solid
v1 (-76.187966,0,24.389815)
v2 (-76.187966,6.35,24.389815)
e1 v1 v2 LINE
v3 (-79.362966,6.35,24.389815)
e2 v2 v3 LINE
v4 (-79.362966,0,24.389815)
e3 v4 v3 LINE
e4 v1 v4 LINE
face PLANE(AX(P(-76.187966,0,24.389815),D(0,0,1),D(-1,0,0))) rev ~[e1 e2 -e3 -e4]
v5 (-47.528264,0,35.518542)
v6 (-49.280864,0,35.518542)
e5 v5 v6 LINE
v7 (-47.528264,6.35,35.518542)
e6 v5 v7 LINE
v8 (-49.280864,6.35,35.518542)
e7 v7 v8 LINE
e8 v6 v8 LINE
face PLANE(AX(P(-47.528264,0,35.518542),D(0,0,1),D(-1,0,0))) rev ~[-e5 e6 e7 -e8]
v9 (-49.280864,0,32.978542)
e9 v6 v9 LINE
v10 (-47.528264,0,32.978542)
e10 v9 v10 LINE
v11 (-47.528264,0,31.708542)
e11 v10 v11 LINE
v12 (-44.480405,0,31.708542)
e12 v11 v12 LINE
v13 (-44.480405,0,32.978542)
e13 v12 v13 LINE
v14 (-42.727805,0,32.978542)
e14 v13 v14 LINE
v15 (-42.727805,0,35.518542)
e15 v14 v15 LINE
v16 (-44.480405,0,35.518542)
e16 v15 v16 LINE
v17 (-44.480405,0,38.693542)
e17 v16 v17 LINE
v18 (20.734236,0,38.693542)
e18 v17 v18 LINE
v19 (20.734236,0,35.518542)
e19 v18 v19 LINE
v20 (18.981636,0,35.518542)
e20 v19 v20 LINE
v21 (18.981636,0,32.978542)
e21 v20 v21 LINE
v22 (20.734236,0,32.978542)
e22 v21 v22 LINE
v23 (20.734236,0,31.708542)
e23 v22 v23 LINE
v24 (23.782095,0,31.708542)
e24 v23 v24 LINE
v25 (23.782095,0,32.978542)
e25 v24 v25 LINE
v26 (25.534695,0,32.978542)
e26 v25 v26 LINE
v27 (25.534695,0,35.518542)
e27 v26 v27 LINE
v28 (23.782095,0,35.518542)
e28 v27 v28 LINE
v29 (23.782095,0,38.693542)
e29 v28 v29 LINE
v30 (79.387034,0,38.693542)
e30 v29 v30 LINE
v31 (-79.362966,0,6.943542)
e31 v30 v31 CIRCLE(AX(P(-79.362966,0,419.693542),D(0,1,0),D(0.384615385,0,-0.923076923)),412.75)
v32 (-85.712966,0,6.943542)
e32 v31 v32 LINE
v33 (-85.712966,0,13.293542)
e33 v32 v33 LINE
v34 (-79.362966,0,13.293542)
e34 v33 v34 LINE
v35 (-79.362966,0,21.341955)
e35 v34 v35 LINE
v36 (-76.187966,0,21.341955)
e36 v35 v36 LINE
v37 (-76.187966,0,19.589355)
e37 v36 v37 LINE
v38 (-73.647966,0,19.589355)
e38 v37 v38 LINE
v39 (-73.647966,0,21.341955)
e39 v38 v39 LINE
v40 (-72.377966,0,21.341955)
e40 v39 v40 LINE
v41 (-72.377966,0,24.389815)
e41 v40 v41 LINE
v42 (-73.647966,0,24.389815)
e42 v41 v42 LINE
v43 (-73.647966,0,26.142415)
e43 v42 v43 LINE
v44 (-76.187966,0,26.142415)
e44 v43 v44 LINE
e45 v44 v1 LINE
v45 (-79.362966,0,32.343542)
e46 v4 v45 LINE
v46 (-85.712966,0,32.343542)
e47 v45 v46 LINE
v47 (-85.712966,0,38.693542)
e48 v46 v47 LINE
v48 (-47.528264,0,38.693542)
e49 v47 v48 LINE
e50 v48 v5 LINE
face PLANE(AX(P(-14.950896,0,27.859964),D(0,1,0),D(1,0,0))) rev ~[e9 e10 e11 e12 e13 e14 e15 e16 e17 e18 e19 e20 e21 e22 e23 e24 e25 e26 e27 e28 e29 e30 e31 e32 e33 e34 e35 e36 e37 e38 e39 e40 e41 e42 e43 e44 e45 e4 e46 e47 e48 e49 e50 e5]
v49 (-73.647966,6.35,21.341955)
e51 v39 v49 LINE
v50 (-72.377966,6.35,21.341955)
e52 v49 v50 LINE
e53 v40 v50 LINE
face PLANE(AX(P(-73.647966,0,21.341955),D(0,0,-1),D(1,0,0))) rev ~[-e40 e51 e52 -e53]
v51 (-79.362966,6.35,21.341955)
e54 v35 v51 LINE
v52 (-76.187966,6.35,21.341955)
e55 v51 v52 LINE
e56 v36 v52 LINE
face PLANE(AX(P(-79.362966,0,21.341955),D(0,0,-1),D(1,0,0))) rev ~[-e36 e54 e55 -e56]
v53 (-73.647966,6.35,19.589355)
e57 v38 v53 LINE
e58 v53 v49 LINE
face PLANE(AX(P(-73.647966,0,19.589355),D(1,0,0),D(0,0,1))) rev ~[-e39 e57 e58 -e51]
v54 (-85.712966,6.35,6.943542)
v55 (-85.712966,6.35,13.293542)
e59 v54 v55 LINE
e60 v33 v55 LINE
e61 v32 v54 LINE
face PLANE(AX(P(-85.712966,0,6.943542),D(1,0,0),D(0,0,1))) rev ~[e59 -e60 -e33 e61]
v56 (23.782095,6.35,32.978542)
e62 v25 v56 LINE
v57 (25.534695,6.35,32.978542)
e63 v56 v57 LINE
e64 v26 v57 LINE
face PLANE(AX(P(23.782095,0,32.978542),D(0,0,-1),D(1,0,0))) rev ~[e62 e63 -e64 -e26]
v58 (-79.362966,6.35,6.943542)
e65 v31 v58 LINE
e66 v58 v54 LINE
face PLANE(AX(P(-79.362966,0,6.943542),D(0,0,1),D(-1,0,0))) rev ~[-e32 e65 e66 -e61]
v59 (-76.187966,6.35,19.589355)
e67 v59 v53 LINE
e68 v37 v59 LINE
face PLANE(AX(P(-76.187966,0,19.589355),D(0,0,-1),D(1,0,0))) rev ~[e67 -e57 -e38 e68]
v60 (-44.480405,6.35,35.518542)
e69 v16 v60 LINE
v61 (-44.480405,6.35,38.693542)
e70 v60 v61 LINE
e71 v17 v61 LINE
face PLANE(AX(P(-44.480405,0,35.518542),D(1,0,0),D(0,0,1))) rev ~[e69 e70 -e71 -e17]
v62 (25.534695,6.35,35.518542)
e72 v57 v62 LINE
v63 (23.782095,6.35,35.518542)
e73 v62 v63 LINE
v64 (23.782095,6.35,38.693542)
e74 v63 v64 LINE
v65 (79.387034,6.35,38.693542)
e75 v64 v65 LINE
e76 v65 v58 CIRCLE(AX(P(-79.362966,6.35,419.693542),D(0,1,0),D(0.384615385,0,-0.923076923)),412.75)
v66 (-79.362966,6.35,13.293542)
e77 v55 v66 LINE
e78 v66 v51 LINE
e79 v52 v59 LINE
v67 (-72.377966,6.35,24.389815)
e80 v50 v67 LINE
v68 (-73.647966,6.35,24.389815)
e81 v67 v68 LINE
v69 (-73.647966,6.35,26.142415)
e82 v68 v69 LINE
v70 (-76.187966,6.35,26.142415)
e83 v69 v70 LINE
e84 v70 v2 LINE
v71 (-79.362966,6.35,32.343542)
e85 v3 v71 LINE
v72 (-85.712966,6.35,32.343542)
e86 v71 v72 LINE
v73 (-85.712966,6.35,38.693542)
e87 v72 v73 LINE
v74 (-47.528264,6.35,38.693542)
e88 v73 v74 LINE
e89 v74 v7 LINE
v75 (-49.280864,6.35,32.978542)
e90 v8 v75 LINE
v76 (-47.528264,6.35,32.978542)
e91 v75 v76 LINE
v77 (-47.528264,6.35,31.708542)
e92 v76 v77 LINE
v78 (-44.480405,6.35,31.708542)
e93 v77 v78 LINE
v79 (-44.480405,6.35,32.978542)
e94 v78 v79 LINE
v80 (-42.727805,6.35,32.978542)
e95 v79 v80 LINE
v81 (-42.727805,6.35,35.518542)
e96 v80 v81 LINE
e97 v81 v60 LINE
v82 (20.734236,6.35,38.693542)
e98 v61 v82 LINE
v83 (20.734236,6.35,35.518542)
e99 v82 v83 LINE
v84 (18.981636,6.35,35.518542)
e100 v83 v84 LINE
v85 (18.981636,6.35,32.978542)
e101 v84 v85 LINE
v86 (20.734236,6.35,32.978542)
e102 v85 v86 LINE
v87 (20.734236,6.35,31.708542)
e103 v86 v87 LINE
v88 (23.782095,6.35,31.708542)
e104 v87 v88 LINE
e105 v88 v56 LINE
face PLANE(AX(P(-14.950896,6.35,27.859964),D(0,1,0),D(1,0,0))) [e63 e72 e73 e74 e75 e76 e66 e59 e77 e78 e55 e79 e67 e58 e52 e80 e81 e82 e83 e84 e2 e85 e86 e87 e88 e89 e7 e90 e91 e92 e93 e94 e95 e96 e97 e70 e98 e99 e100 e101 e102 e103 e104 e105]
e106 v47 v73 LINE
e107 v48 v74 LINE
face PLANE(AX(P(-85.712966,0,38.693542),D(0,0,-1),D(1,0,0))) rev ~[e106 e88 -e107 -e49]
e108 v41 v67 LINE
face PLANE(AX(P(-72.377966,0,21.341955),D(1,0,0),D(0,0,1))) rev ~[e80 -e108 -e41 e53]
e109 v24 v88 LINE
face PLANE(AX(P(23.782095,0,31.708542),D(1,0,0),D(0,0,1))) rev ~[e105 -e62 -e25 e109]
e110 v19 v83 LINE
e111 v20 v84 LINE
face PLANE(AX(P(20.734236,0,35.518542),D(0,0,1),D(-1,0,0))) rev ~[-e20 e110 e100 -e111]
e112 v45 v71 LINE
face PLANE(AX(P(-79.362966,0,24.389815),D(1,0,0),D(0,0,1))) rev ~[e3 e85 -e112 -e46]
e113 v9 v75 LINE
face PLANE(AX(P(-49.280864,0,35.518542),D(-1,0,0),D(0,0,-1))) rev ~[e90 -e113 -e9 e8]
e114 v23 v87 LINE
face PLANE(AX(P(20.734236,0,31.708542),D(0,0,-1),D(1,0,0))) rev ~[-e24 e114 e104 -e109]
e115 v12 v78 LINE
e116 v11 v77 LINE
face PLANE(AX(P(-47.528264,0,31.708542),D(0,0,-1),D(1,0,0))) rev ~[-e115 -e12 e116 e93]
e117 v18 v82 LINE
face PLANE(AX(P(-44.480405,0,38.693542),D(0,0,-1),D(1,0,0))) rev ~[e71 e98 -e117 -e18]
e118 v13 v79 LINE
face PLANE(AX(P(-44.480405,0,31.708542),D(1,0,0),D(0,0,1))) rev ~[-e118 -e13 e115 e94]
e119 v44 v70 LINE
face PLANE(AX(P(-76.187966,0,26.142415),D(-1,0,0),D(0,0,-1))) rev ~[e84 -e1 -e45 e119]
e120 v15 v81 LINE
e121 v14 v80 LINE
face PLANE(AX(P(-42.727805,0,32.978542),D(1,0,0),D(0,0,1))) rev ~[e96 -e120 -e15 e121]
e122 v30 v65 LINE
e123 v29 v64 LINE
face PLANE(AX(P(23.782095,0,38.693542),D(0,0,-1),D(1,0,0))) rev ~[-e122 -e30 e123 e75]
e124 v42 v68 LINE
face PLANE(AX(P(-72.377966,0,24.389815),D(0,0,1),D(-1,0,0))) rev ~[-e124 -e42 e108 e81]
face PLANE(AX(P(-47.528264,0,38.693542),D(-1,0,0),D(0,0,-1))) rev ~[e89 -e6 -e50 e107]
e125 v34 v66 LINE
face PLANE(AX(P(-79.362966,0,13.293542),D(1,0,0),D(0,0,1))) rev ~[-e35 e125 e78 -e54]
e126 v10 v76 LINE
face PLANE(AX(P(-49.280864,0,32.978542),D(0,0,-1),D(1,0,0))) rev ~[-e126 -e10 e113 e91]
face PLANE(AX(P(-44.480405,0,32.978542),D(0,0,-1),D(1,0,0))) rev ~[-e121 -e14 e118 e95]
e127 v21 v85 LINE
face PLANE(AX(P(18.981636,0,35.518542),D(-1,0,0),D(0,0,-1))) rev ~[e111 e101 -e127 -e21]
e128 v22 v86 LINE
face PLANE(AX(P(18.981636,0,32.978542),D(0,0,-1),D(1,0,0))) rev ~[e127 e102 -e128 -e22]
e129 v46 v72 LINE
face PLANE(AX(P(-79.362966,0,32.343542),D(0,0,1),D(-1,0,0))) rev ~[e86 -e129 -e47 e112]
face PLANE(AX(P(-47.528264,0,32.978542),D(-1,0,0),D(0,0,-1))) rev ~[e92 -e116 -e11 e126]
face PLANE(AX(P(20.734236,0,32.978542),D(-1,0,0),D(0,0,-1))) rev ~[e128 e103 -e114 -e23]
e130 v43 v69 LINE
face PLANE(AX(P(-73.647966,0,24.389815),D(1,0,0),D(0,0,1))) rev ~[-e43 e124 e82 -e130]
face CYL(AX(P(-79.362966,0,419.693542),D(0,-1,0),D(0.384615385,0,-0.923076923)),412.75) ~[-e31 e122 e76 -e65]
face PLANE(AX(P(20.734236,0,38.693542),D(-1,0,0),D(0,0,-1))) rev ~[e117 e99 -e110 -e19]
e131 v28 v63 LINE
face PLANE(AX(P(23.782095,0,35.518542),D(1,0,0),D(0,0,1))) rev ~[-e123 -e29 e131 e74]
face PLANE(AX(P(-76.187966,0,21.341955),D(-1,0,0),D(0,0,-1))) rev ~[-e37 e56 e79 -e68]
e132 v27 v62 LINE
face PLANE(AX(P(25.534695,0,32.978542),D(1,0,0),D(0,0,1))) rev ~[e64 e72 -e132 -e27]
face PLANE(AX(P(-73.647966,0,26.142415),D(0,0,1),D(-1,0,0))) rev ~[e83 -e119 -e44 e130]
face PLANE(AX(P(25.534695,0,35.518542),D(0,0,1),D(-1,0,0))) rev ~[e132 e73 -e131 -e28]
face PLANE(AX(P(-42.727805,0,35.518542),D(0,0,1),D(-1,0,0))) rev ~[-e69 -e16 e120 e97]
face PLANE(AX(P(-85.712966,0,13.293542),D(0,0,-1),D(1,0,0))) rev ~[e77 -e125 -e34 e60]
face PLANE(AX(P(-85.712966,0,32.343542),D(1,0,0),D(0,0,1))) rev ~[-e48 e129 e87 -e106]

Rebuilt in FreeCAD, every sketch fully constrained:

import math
import FreeCAD as App
import Part
import Sketcher
from FreeCAD import Vector
Q = App.Units.Quantity

doc = App.newDocument("Part")
body = doc.addObject("PartDesign::Body", "Body")

sketch1 = doc.addObject("Sketcher::SketchObject", "Sketch")
body.addObject(sketch1)
sketch1.AttachmentSupport = (doc.XZ_Plane, [""])
sketch1.MapMode = "FlatFace"
sketch1.addGeometry([
    Part.LineSegment(Vector(-79.362966, 13.293542, 0), Vector(-79.362966, 21.341955, 0)),
    Part.LineSegment(Vector(-79.362966, 21.341955, 0), Vector(-76.187966, 21.341955, 0)),
    Part.LineSegment(Vector(-76.187966, 21.341955, 0), Vector(-76.187966, 19.589355, 0)),
    Part.LineSegment(Vector(-76.187966, 19.589355, 0), Vector(-73.647966, 19.589355, 0)),
    Part.LineSegment(Vector(-73.647966, 19.589355, 0), Vector(-73.647966, 21.341955, 0)),
    Part.LineSegment(Vector(-73.647966, 21.341955, 0), Vector(-72.377966, 21.341955, 0)),
    Part.LineSegment(Vector(-72.377966, 21.341955, 0), Vector(-72.377966, 24.389815, 0)),
    Part.LineSegment(Vector(-72.377966, 24.389815, 0), Vector(-73.647966, 24.389815, 0)),
    Part.LineSegment(Vector(-73.647966, 24.389815, 0), Vector(-73.647966, 26.142415, 0)),
    Part.LineSegment(Vector(-73.647966, 26.142415, 0), Vector(-76.187966, 26.142415, 0)),
    Part.LineSegment(Vector(-76.187966, 26.142415, 0), Vector(-76.187966, 24.389815, 0)),
    Part.LineSegment(Vector(-76.187966, 24.389815, 0), Vector(-79.362966, 24.389815, 0)),
    Part.LineSegment(Vector(-79.362966, 24.389815, 0), Vector(-79.362966, 32.343542, 0)),
    Part.LineSegment(Vector(-79.362966, 32.343542, 0), Vector(-85.712966, 32.343542, 0)),
    Part.LineSegment(Vector(-85.712966, 32.343542, 0), Vector(-85.712966, 38.693542, 0)),
    Part.LineSegment(Vector(-85.712966, 38.693542, 0), Vector(-47.528264, 38.693542, 0)),
    Part.LineSegment(Vector(-47.528264, 38.693542, 0), Vector(-47.528264, 35.518542, 0)),
    Part.LineSegment(Vector(-47.528264, 35.518542, 0), Vector(-49.280864, 35.518542, 0)),
    Part.LineSegment(Vector(-49.280864, 35.518542, 0), Vector(-49.280864, 32.978542, 0)),
    Part.LineSegment(Vector(-49.280864, 32.978542, 0), Vector(-47.528264, 32.978542, 0)),
    Part.LineSegment(Vector(-47.528264, 32.978542, 0), Vector(-47.528264, 31.708542, 0)),
    Part.LineSegment(Vector(-47.528264, 31.708542, 0), Vector(-44.480405, 31.708542, 0)),
    Part.LineSegment(Vector(-44.480405, 31.708542, 0), Vector(-44.480405, 32.978542, 0)),
    Part.LineSegment(Vector(-44.480405, 32.978542, 0), Vector(-42.727805, 32.978542, 0)),
    Part.LineSegment(Vector(-42.727805, 32.978542, 0), Vector(-42.727805, 35.518542, 0)),
    Part.LineSegment(Vector(-42.727805, 35.518542, 0), Vector(-44.480405, 35.518542, 0)),
    Part.LineSegment(Vector(-44.480405, 35.518542, 0), Vector(-44.480405, 38.693542, 0)),
    Part.LineSegment(Vector(-44.480405, 38.693542, 0), Vector(20.734236, 38.693542, 0)),
    Part.LineSegment(Vector(20.734236, 38.693542, 0), Vector(20.734236, 35.518542, 0)),
    Part.LineSegment(Vector(20.734236, 35.518542, 0), Vector(18.981636, 35.518542, 0)),
    Part.LineSegment(Vector(18.981636, 35.518542, 0), Vector(18.981636, 32.978542, 0)),
    Part.LineSegment(Vector(18.981636, 32.978542, 0), Vector(20.734236, 32.978542, 0)),
    Part.LineSegment(Vector(20.734236, 32.978542, 0), Vector(20.734236, 31.708542, 0)),
    Part.LineSegment(Vector(20.734236, 31.708542, 0), Vector(23.782095, 31.708542, 0)),
    Part.LineSegment(Vector(23.782095, 31.708542, 0), Vector(23.782095, 32.978542, 0)),
    Part.LineSegment(Vector(23.782095, 32.978542, 0), Vector(25.534695, 32.978542, 0)),
    Part.LineSegment(Vector(25.534695, 32.978542, 0), Vector(25.534695, 35.518542, 0)),
    Part.LineSegment(Vector(25.534695, 35.518542, 0), Vector(23.782095, 35.518542, 0)),
    Part.LineSegment(Vector(23.782095, 35.518542, 0), Vector(23.782095, 38.693542, 0)),
    Part.LineSegment(Vector(23.782095, 38.693542, 0), Vector(79.387034, 38.693542, 0)),
    Part.ArcOfCircle(Part.Circle(Vector(-79.362966, 419.693542, 0), Vector(0, 0, 1), 412.75), math.radians(-90), math.radians(-67.380135)),
    Part.LineSegment(Vector(-79.362966, 6.943542, 0), Vector(-85.712966, 6.943542, 0)),
    Part.LineSegment(Vector(-85.712966, 6.943542, 0), Vector(-85.712966, 13.293542, 0)),
    Part.LineSegment(Vector(-85.712966, 13.293542, 0), Vector(-79.362966, 13.293542, 0)),
], False)
sketch1.addConstraint([
    Sketcher.Constraint("Coincident", 0, 2, 1, 1),
    Sketcher.Constraint("Coincident", 1, 2, 2, 1),
    Sketcher.Constraint("Coincident", 2, 2, 3, 1),
    Sketcher.Constraint("Coincident", 3, 2, 4, 1),
    Sketcher.Constraint("Coincident", 4, 2, 5, 1),
    Sketcher.Constraint("Coincident", 5, 2, 6, 1),
    Sketcher.Constraint("Coincident", 6, 2, 7, 1),
    Sketcher.Constraint("Coincident", 7, 2, 8, 1),
    Sketcher.Constraint("Coincident", 8, 2, 9, 1),
    Sketcher.Constraint("Coincident", 9, 2, 10, 1),
    Sketcher.Constraint("Coincident", 10, 2, 11, 1),
    Sketcher.Constraint("Coincident", 11, 2, 12, 1),
    Sketcher.Constraint("Coincident", 12, 2, 13, 1),
    Sketcher.Constraint("Coincident", 13, 2, 14, 1),
    Sketcher.Constraint("Coincident", 14, 2, 15, 1),
    Sketcher.Constraint("Coincident", 15, 2, 16, 1),
    Sketcher.Constraint("Coincident", 16, 2, 17, 1),
    Sketcher.Constraint("Coincident", 17, 2, 18, 1),
    Sketcher.Constraint("Coincident", 18, 2, 19, 1),
    Sketcher.Constraint("Coincident", 19, 2, 20, 1),
    Sketcher.Constraint("Coincident", 20, 2, 21, 1),
    Sketcher.Constraint("Coincident", 21, 2, 22, 1),
    Sketcher.Constraint("Coincident", 22, 2, 23, 1),
    Sketcher.Constraint("Coincident", 23, 2, 24, 1),
    Sketcher.Constraint("Coincident", 24, 2, 25, 1),
    Sketcher.Constraint("Coincident", 25, 2, 26, 1),
    Sketcher.Constraint("Coincident", 26, 2, 27, 1),
    Sketcher.Constraint("Coincident", 27, 2, 28, 1),
    Sketcher.Constraint("Coincident", 28, 2, 29, 1),
    Sketcher.Constraint("Coincident", 29, 2, 30, 1),
    Sketcher.Constraint("Coincident", 30, 2, 31, 1),
    Sketcher.Constraint("Coincident", 31, 2, 32, 1),
    Sketcher.Constraint("Coincident", 32, 2, 33, 1),
    Sketcher.Constraint("Coincident", 33, 2, 34, 1),
    Sketcher.Constraint("Coincident", 34, 2, 35, 1),
    Sketcher.Constraint("Coincident", 35, 2, 36, 1),
    Sketcher.Constraint("Coincident", 36, 2, 37, 1),
    Sketcher.Constraint("Coincident", 37, 2, 38, 1),
    Sketcher.Constraint("Coincident", 38, 2, 39, 1),
    Sketcher.Constraint("Coincident", 39, 2, 40, 2),
    Sketcher.Constraint("Tangent", 40, 1, 41, 1),
    Sketcher.Constraint("Coincident", 41, 2, 42, 1),
    Sketcher.Constraint("Coincident", 42, 2, 43, 1),
    Sketcher.Constraint("Coincident", 43, 2, 0, 1),
    Sketcher.Constraint("Vertical", 0),
    Sketcher.Constraint("Horizontal", 1),
    Sketcher.Constraint("Vertical", 2),
    Sketcher.Constraint("Horizontal", 3),
    Sketcher.Constraint("Vertical", 4),
    Sketcher.Constraint("Horizontal", 5),
    Sketcher.Constraint("Vertical", 6),
    Sketcher.Constraint("Horizontal", 7),
    Sketcher.Constraint("Vertical", 8),
    Sketcher.Constraint("Horizontal", 9),
    Sketcher.Constraint("Vertical", 10),
    Sketcher.Constraint("Horizontal", 11),
    Sketcher.Constraint("Vertical", 12),
    Sketcher.Constraint("Horizontal", 13),
    Sketcher.Constraint("Vertical", 14),
    Sketcher.Constraint("Horizontal", 15),
    Sketcher.Constraint("Vertical", 16),
    Sketcher.Constraint("Horizontal", 17),
    Sketcher.Constraint("Vertical", 18),
    Sketcher.Constraint("Horizontal", 19),
    Sketcher.Constraint("Vertical", 20),
    Sketcher.Constraint("Horizontal", 21),
    Sketcher.Constraint("Vertical", 22),
    Sketcher.Constraint("Horizontal", 23),
    Sketcher.Constraint("Vertical", 24),
    Sketcher.Constraint("Horizontal", 25),
    Sketcher.Constraint("Vertical", 26),
    Sketcher.Constraint("Horizontal", 27),
    Sketcher.Constraint("Vertical", 28),
    Sketcher.Constraint("Horizontal", 29),
    Sketcher.Constraint("Vertical", 30),
    Sketcher.Constraint("Horizontal", 31),
    Sketcher.Constraint("Vertical", 32),
    Sketcher.Constraint("Horizontal", 33),
    Sketcher.Constraint("Vertical", 34),
    Sketcher.Constraint("Horizontal", 35),
    Sketcher.Constraint("Vertical", 36),
    Sketcher.Constraint("Horizontal", 37),
    Sketcher.Constraint("Vertical", 38),
    Sketcher.Constraint("Horizontal", 39),
    Sketcher.Constraint("Horizontal", 41),
    Sketcher.Constraint("Vertical", 42),
    Sketcher.Constraint("Horizontal", 43),
    Sketcher.Constraint("Horizontal", 1, 2, 4, 2),
    Sketcher.Constraint("Horizontal", 7, 2, 10, 2),
    Sketcher.Constraint("Horizontal", 19, 2, 22, 2),
    Sketcher.Constraint("Horizontal", 17, 2, 24, 2),
    Sketcher.Constraint("Horizontal", 15, 2, 26, 2),
    Sketcher.Constraint("Horizontal", 25, 2, 28, 2),
    Sketcher.Constraint("Horizontal", 23, 2, 30, 2),
    Sketcher.Constraint("Horizontal", 21, 2, 32, 2),
    Sketcher.Constraint("Horizontal", 31, 2, 34, 2),
    Sketcher.Constraint("Horizontal", 29, 2, 36, 2),
    Sketcher.Constraint("Horizontal", 27, 2, 38, 2),
    Sketcher.Constraint("Vertical", 40, 3, 0, 2),
    Sketcher.Constraint("Vertical", 4, 2, 7, 2),
    Sketcher.Constraint("Vertical", 2, 2, 9, 2),
    Sketcher.Constraint("Vertical", 0, 2, 11, 2),
    Sketcher.Constraint("Vertical", 16, 2, 19, 2),
    Sketcher.Constraint("Vertical", 22, 2, 25, 2),
    Sketcher.Constraint("Vertical", 28, 2, 31, 2),
    Sketcher.Constraint("Vertical", 34, 2, 37, 2),
    Sketcher.Constraint("Vertical", 14, 2, 41, 2),
    Sketcher.Constraint("Equal", 19, 23),
    Sketcher.Constraint("Equal", 25, 29),
    Sketcher.Constraint("Equal", 21, 33),
    Sketcher.Constraint("Equal", 31, 35),
    Sketcher.Constraint("Equal", 37, 2),
    Sketcher.Constraint("Equal", 33, 6),
    Sketcher.Constraint("Equal", 4, 8),
    Sketcher.Constraint("Equal", 43, 14),
    Sketcher.Constraint("Equal", 11, 16),
    Sketcher.Constraint("Equal", 9, 18),
    Sketcher.Constraint("Equal", 7, 20),
    Sketcher.Constraint("Equal", 14, 42),
    Sketcher.Constraint("Radius", 40, Q("16.25 in")),
    Sketcher.Constraint("DistanceX", 3, 1, 3, 2, Q("0.1 in")),
    Sketcher.Constraint("DistanceX", 5, 1, 5, 2, Q("0.05 in")),
    Sketcher.Constraint("DistanceX", 13, 2, 13, 1, Q("0.25 in")),
    Sketcher.Constraint("DistanceX", 1, 1, 1, 2, Q("0.125 in")),
    Sketcher.Constraint("DistanceX", 17, 2, 17, 1, Q("0.069 in")),
    Sketcher.Constraint("DistanceX", 15, 1, 15, 2, Q("38.184702 mm")),
    Sketcher.Constraint("DistanceX", 21, 1, 21, 2, Q("3.047859 mm")),
    Sketcher.Constraint("DistanceX", 27, 1, 27, 2, Q("65.214641 mm")),
    Sketcher.Constraint("DistanceX", 39, 1, 39, 2, Q("55.604939 mm")),
    Sketcher.Constraint("DistanceY", 0, 1, 0, 2, Q("8.048414 mm")),
    Sketcher.Constraint("DistanceY", -1, 1, 40, 3, Q("419.693542 mm")),
    Sketcher.Constraint("DistanceX", 40, 3, -1, 1, Q("79.362966 mm")),
])
pad1 = doc.addObject("PartDesign::Pad", "Pad")
body.addObject(pad1)
pad1.Profile = sketch1
pad1.Length = Q("0.25 in")
pad1.Reversed = True

doc.recompute()
